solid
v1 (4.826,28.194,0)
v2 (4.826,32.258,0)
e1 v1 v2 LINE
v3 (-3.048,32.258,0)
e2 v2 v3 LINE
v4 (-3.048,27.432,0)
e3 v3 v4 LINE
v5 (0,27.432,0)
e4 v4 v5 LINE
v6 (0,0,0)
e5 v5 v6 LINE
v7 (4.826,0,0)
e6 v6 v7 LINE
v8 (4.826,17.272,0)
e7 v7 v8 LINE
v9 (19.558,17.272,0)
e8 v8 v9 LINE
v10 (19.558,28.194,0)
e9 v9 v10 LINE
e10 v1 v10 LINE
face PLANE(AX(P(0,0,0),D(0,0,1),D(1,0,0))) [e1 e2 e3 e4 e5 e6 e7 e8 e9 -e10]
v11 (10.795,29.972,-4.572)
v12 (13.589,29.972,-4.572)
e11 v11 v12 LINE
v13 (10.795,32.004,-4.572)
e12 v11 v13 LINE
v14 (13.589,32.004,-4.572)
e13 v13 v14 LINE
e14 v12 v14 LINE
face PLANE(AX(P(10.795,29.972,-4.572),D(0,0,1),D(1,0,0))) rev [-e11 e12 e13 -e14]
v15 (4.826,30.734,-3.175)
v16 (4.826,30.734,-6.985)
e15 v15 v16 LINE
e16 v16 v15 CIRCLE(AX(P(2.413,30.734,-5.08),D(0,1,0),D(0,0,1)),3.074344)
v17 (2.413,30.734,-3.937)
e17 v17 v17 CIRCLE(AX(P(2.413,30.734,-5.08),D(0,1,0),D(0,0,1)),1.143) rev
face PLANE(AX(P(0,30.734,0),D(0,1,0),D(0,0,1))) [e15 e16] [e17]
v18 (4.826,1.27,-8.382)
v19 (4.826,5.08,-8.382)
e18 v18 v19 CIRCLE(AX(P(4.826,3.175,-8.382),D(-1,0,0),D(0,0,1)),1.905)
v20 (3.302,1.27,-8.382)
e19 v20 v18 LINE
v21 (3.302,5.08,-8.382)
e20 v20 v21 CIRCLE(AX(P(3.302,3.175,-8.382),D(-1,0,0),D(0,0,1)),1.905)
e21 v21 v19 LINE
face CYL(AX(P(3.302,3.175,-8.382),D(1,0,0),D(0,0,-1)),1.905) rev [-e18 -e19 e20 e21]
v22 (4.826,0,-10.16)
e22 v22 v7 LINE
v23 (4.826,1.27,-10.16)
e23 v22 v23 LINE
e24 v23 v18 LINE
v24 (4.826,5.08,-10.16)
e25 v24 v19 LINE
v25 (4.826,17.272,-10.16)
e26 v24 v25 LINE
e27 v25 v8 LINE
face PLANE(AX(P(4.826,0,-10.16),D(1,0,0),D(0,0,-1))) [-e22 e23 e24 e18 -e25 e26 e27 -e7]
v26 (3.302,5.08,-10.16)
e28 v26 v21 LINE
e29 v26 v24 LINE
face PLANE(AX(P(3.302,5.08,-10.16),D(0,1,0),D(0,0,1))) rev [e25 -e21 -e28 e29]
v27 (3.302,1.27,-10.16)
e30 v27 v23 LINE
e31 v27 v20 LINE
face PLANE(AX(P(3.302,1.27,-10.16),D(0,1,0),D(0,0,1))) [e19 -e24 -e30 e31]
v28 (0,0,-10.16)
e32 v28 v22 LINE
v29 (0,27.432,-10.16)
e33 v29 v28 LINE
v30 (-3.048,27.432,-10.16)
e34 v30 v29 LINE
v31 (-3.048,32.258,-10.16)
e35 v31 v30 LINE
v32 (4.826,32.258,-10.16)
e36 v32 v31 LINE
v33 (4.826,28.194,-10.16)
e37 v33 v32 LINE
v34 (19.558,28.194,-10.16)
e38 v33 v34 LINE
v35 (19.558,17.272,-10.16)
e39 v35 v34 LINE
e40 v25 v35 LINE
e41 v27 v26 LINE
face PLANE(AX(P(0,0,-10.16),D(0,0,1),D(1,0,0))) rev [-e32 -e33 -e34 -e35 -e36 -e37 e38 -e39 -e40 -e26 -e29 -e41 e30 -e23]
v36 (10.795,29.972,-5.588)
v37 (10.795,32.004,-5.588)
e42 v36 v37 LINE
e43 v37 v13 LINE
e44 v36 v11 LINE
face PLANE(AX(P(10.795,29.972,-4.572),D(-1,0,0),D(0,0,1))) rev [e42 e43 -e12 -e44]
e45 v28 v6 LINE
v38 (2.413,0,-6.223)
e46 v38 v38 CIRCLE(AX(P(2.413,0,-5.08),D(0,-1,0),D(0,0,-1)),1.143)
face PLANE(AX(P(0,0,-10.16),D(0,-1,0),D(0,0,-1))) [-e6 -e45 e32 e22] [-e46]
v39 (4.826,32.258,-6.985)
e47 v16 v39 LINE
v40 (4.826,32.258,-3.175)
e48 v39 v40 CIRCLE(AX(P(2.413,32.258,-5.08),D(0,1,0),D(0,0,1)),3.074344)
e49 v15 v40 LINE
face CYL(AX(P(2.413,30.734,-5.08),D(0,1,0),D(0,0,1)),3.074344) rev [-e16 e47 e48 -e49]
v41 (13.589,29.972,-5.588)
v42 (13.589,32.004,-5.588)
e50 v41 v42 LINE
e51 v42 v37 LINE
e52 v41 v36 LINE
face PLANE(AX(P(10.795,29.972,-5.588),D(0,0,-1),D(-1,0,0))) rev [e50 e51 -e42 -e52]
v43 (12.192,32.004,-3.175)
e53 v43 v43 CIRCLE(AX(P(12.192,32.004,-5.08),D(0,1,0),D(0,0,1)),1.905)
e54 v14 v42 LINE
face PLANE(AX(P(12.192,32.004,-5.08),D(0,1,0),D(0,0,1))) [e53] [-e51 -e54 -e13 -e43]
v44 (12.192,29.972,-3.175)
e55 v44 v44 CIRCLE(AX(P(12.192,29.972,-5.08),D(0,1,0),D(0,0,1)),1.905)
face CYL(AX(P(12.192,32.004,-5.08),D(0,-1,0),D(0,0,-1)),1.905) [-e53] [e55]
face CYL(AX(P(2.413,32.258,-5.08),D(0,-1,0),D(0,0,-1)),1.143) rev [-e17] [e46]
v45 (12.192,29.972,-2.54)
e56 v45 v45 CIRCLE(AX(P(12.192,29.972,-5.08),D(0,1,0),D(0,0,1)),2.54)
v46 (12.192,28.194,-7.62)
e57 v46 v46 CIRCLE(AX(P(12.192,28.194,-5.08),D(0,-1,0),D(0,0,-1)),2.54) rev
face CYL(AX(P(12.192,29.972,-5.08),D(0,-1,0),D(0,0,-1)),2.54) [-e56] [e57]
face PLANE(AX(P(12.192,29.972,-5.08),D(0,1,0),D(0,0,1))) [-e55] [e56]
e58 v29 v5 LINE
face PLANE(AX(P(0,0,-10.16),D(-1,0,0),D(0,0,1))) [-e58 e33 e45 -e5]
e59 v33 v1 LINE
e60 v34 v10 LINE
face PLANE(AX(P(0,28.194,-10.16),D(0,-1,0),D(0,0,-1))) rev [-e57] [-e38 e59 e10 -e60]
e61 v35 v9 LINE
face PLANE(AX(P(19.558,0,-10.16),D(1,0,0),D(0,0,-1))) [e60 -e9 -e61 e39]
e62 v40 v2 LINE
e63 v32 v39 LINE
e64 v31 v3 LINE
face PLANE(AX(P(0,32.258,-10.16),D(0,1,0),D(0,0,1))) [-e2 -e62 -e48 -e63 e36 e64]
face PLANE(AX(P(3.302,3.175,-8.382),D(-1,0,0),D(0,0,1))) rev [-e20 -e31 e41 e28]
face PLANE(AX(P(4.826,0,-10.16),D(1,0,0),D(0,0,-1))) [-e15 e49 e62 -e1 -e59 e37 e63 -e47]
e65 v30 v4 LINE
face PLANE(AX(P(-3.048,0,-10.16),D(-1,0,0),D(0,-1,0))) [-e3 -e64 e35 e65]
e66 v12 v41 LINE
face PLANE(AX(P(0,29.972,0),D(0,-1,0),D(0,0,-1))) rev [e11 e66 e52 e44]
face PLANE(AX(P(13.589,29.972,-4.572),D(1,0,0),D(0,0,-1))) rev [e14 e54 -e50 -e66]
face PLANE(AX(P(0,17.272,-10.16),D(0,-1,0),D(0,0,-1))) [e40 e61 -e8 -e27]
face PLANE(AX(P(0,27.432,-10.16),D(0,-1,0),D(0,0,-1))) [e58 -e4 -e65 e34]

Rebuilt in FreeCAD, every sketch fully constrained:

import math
import FreeCAD as App
import Part
import Sketcher
from FreeCAD import Vector
Q = App.Units.Quantity

doc = App.newDocument("Part")
body = doc.addObject("PartDesign::Body", "Body")

sketch1 = body.newObject("Sketcher::SketchObject", "Sketch")
sketch1.AttachmentSupport = (doc.getObject("XY_Plane"), [""])
sketch1.MapMode = "FlatFace"
sketch1.addGeometry(Part.LineSegment(Vector(4.8, 17.3, 0), Vector(19.6, 17.3, 0)), False)
sketch1.addGeometry(Part.LineSegment(Vector(19.6, 17.3, 0), Vector(19.6, 28.2, 0)), False)
sketch1.addGeometry(Part.LineSegment(Vector(19.6, 28.2, 0), Vector(4.8, 28.2, 0)), False)
sketch1.addGeometry(Part.LineSegment(Vector(4.8, 28.2, 0), Vector(4.8, 32.3, 0)), False)
sketch1.addGeometry(Part.LineSegment(Vector(4.8, 32.3, 0), Vector(-3, 32.3, 0)), False)
sketch1.addGeometry(Part.LineSegment(Vector(-3, 32.3, 0), Vector(-3, 27.4, 0)), False)
sketch1.addGeometry(Part.LineSegment(Vector(-3, 27.4, 0), Vector(0, 27.4, 0)), False)
sketch1.addGeometry(Part.LineSegment(Vector(0, 27.4, 0), Vector(0, 0, 0)), False)
sketch1.addGeometry(Part.LineSegment(Vector(0, 0, 0), Vector(4.8, 0, 0)), False)
sketch1.addGeometry(Part.LineSegment(Vector(4.8, 0, 0), Vector(4.8, 17.3, 0)), False)
sketch1.addConstraint(Sketcher.Constraint("Coincident", 0, 2, 1, 1))
sketch1.addConstraint(Sketcher.Constraint("Coincident", 1, 2, 2, 1))
sketch1.addConstraint(Sketcher.Constraint("Coincident", 2, 2, 3, 1))
sketch1.addConstraint(Sketcher.Constraint("Coincident", 3, 2, 4, 1))
sketch1.addConstraint(Sketcher.Constraint("Coincident", 4, 2, 5, 1))
sketch1.addConstraint(Sketcher.Constraint("Coincident", 5, 2, 6, 1))
sketch1.addConstraint(Sketcher.Constraint("Coincident", 6, 2, 7, 1))
sketch1.addConstraint(Sketcher.Constraint("Coincident", 7, 2, 8, 1))
sketch1.addConstraint(Sketcher.Constraint("Coincident", 8, 2, 9, 1))
sketch1.addConstraint(Sketcher.Constraint("Coincident", 9, 2, 0, 1))
sketch1.addConstraint(Sketcher.Constraint("Horizontal", 0))
sketch1.addConstraint(Sketcher.Constraint("Vertical", 1))
sketch1.addConstraint(Sketcher.Constraint("Horizontal", 2))
sketch1.addConstraint(Sketcher.Constraint("Vertical", 3))
sketch1.addConstraint(Sketcher.Constraint("Horizontal", 4))
sketch1.addConstraint(Sketcher.Constraint("Vertical", 5))
sketch1.addConstraint(Sketcher.Constraint("Horizontal", 6))
sketch1.addConstraint(Sketcher.Constraint("Vertical", 7))
sketch1.addConstraint(Sketcher.Constraint("Horizontal", 8))
sketch1.addConstraint(Sketcher.Constraint("Vertical", 9))
sketch1.addConstraint(Sketcher.Constraint("Coincident", 7, 2, -1, 1))
sketch1.addConstraint(Sketcher.Constraint("Vertical", 3, 2, 8, 2))
sketch1.addConstraint(Sketcher.Constraint("Equal", 8, 5))
sketch1.addConstraint(Sketcher.Constraint("DistanceX", 0, 1, 0, 2, Q("0.58 in")))
sketch1.addConstraint(Sketcher.Constraint("DistanceX", 4, 2, 4, 1, Q("0.31 in")))
sketch1.addConstraint(Sketcher.Constraint("DistanceX", 6, 1, 6, 2, Q("0.12 in")))
sketch1.addConstraint(Sketcher.Constraint("DistanceY", 1, 1, 1, 2, Q("0.43 in")))
sketch1.addConstraint(Sketcher.Constraint("DistanceY", 3, 1, 3, 2, Q("0.16 in")))
sketch1.addConstraint(Sketcher.Constraint("DistanceY", 7, 2, 7, 1, Q("1.08 in")))
pad1 = body.newObject("PartDesign::Pad", "Pad")
pad1.Profile = sketch1
pad1.Length = Q("0.4 in")
pad1.Reversed = True

sketch2 = body.newObject("Sketcher::SketchObject", "Sketch001")
sketch2.AttachmentSupport = (doc.getObject("XZ_Plane"), [""])
sketch2.MapMode = "FlatFace"
sketch2.addGeometry(Part.Circle(Vector(2.4, -5.1, 0), Vector(0, 0, 1), 1.1), False)
sketch2.addConstraint(Sketcher.Constraint("Diameter", 0, Q("0.09 in")))
sketch2.addConstraint(Sketcher.Constraint("DistanceY", 0, 3, -1, 1, Q("0.2 in")))
sketch2.addConstraint(Sketcher.Constraint("DistanceX", -1, 1, 0, 3, Q("0.095 in")))
pocket1 = body.newObject("PartDesign::Pocket", "Pocket")
pocket1.Profile = sketch2
pocket1.Type = "ThroughAll"

sketch3 = body.newObject("Sketcher::SketchObject", "Sketch002")
sketch3.AttachmentSupport = (doc.getObject("YZ_Plane"), [""])
sketch3.MapMode = "FlatFace"
sketch3.AttachmentOffset = App.Placement(Vector(0, 0, 0.19 * 25.4), App.Rotation())
sketch3.addGeometry(Part.LineSegment(Vector(1.3, -8.4, 0), Vector(1.3, -10.2, 0)), False)
sketch3.addGeometry(Part.LineSegment(Vector(1.3, -10.2, 0), Vector(5.1, -10.2, 0)), False)
sketch3.addGeometry(Part.LineSegment(Vector(5.1, -10.2, 0), Vector(5.1, -8.4, 0)), False)
sketch3.addGeometry(Part.ArcOfCircle(Part.Circle(Vector(3.2, -8.4, 0), Vector(0, 0, 1), 1.9), math.radians(0), math.radians(180)), False)
sketch3.addConstraint(Sketcher.Constraint("Coincident", 0, 2, 1, 1))
sketch3.addConstraint(Sketcher.Constraint("Coincident", 1, 2, 2, 1))
sketch3.addConstraint(Sketcher.Constraint("Tangent", 2, 2, 3, 1))
sketch3.addConstraint(Sketcher.Constraint("Tangent", 3, 2, 0, 1))
sketch3.addConstraint(Sketcher.Constraint("Vertical", 0))
sketch3.addConstraint(Sketcher.Constraint("Horizontal", 1))
sketch3.addConstraint(Sketcher.Constraint("Vertical", 2))
sketch3.addConstraint(Sketcher.Constraint("Radius", 3, Q("0.075 in")))
sketch3.addConstraint(Sketcher.Constraint("DistanceY", 0, 2, 0, 1, Q("0.07 in")))
sketch3.addConstraint(Sketcher.Constraint("DistanceY", 0, 2, -1, 1, Q("0.4 in")))
sketch3.addConstraint(Sketcher.Constraint("DistanceX", -1, 1, 1, 2, Q("0.2 in")))
pocket2 = body.newObject("PartDesign::Pocket", "Pocket001")
pocket2.Profile = sketch3
pocket2.Length = Q("0.06 in")

sketch4 = body.newObject("Sketcher::SketchObject", "Sketch003")
sketch4.AttachmentSupport = (doc.getObject("XZ_Plane"), [""])
sketch4.MapMode = "FlatFace"
sketch4.AttachmentOffset = App.Placement(Vector(0, 0, -1.21 * 25.4), App.Rotation())
sketch4.addGeometry(Part.LineSegment(Vector(4.8, -3.2, 0), Vector(4.8, -7, 0)), False)
sketch4.addGeometry(Part.ArcOfCircle(Part.Circle(Vector(2.4, -5.1, 0), Vector(0, 0, 1), 3.1), math.radians(38), math.radians(322)), False)
sketch4.addGeometry(Part.Circle(Vector(2.4, -5.1, 0), Vector(0, 0, 1), 1.1), False)
sketch4.addConstraint(Sketcher.Constraint("Coincident", 0, 1, 1, 1))
sketch4.addConstraint(Sketcher.Constraint("Coincident", 1, 2, 0, 2))
sketch4.addConstraint(Sketcher.Constraint("Vertical", 0))
sketch4.addConstraint(Sketcher.Constraint("Coincident", 2, 3, 1, 3))
sketch4.addConstraint(Sketcher.Constraint("Diameter", 2, Q("0.09 in")))
sketch4.addConstraint(Sketcher.Constraint("DistanceY", 0, 2, 0, 1, Q("0.15 in")))
sketch4.addConstraint(Sketcher.Constraint("DistanceY", 1, 3, -1, 1, Q("0.2 in")))
sketch4.addConstraint(Sketcher.Constraint("DistanceX", -1, 1, 0, 1, Q("0.19 in")))
sketch4.addConstraint(Sketcher.Constraint("DistanceX", -1, 1, 1, 3, Q("0.095 in")))
pocket3 = body.newObject("PartDesign::Pocket", "Pocket002")
pocket3.Profile = sketch4
pocket3.Length = Q("0.06 in")

sketch5 = body.newObject("Sketcher::SketchObject", "Sketch004")
sketch5.AttachmentSupport = (doc.getObject("XZ_Plane"), [""])
sketch5.MapMode = "FlatFace"
sketch5.AttachmentOffset = App.Placement(Vector(0, 0, -1.11 * 25.4), App.Rotation())
sketch5.addGeometry(Part.Circle(Vector(12.2, -5.1, 0), Vector(0, 0, 1), 2.5), False)
sketch5.addConstraint(Sketcher.Constraint("Diameter", 0, Q("0.2 in")))
sketch5.addConstraint(Sketcher.Constraint("DistanceY", 0, 3, -1, 1, Q("0.2 in")))
sketch5.addConstraint(Sketcher.Constraint("DistanceX", -1, 1, 0, 3, Q("0.48 in")))
pad2 = body.newObject("PartDesign::Pad", "Pad001")
pad2.Profile = sketch5
pad2.Length = Q("0.07 in")
pad2.Reversed = True

sketch6 = body.newObject("Sketcher::SketchObject", "Sketch005")
sketch6.AttachmentSupport = (doc.getObject("XZ_Plane"), [""])
sketch6.MapMode = "FlatFace"
sketch6.AttachmentOffset = App.Placement(Vector(0, 0, -1.18 * 25.4), App.Rotation())
sketch6.addGeometry(Part.Circle(Vector(12.2, -5.1, 0), Vector(0, 0, 1), 1.9), False)
sketch6.addConstraint(Sketcher.Constraint("Diameter", 0, Q("0.15 in")))
sketch6.addConstraint(Sketcher.Constraint("DistanceY", 0, 3, -1, 1, Q("0.2 in")))
sketch6.addConstraint(Sketcher.Constraint("DistanceX", -1, 1, 0, 3, Q("0.48 in")))
pad3 = body.newObject("PartDesign::Pad", "Pad002")
pad3.Profile = sketch6
pad3.Length = Q("0.08 in")
pad3.Reversed = True

sketch7 = body.newObject("Sketcher::SketchObject", "Sketch006")
sketch7.AttachmentSupport = (doc.getObject("XZ_Plane"), [""])
sketch7.MapMode = "FlatFace"
sketch7.AttachmentOffset = App.Placement(Vector(0, 0, -1.26 * 25.4), App.Rotation())
sketch7.addGeometry(Part.LineSegment(Vector(10.8, -5.6, 0), Vector(10.8, -4.6, 0)), False)
sketch7.addGeometry(Part.LineSegment(Vector(10.8, -4.6, 0), Vector(13.6, -4.6, 0)), False)
sketch7.addGeometry(Part.LineSegment(Vector(13.6, -4.6, 0), Vector(13.6, -5.6, 0)), False)
sketch7.addGeometry(Part.LineSegment(Vector(13.6, -5.6, 0), Vector(10.8, -5.6, 0)), False)
sketch7.addConstraint(Sketcher.Constraint("Coincident", 0, 2, 1, 1))
sketch7.addConstraint(Sketcher.Constraint("Coincident", 1, 2, 2, 1))
sketch7.addConstraint(Sketcher.Constraint("Coincident", 2, 2, 3, 1))
sketch7.addConstraint(Sketcher.Constraint("Coincident", 3, 2, 0, 1))
sketch7.addConstraint(Sketcher.Constraint("Vertical", 0))
sketch7.addConstraint(Sketcher.Constraint("Horizontal", 1))
sketch7.addConstraint(Sketcher.Constraint("Vertical", 2))
sketch7.addConstraint(Sketcher.Constraint("Horizontal", 3))
sketch7.addConstraint(Sketcher.Constraint("DistanceX", 1, 1, 1, 2, Q("0.11 in")))
sketch7.addConstraint(Sketcher.Constraint("DistanceY", 0, 1, 0, 2, Q("0.04 in")))
sketch7.addConstraint(Sketcher.Constraint("DistanceY", 0, 2, -1, 1, Q("0.18 in")))
sketch7.addConstraint(Sketcher.Constraint("DistanceX", -1, 1, 0, 2, Q("0.425 in")))
pocket4 = body.newObject("PartDesign::Pocket", "Pocket003")
pocket4.Profile = sketch7
pocket4.Length = Q("0.08 in")
pocket4.Reversed = True

doc.recompute()
